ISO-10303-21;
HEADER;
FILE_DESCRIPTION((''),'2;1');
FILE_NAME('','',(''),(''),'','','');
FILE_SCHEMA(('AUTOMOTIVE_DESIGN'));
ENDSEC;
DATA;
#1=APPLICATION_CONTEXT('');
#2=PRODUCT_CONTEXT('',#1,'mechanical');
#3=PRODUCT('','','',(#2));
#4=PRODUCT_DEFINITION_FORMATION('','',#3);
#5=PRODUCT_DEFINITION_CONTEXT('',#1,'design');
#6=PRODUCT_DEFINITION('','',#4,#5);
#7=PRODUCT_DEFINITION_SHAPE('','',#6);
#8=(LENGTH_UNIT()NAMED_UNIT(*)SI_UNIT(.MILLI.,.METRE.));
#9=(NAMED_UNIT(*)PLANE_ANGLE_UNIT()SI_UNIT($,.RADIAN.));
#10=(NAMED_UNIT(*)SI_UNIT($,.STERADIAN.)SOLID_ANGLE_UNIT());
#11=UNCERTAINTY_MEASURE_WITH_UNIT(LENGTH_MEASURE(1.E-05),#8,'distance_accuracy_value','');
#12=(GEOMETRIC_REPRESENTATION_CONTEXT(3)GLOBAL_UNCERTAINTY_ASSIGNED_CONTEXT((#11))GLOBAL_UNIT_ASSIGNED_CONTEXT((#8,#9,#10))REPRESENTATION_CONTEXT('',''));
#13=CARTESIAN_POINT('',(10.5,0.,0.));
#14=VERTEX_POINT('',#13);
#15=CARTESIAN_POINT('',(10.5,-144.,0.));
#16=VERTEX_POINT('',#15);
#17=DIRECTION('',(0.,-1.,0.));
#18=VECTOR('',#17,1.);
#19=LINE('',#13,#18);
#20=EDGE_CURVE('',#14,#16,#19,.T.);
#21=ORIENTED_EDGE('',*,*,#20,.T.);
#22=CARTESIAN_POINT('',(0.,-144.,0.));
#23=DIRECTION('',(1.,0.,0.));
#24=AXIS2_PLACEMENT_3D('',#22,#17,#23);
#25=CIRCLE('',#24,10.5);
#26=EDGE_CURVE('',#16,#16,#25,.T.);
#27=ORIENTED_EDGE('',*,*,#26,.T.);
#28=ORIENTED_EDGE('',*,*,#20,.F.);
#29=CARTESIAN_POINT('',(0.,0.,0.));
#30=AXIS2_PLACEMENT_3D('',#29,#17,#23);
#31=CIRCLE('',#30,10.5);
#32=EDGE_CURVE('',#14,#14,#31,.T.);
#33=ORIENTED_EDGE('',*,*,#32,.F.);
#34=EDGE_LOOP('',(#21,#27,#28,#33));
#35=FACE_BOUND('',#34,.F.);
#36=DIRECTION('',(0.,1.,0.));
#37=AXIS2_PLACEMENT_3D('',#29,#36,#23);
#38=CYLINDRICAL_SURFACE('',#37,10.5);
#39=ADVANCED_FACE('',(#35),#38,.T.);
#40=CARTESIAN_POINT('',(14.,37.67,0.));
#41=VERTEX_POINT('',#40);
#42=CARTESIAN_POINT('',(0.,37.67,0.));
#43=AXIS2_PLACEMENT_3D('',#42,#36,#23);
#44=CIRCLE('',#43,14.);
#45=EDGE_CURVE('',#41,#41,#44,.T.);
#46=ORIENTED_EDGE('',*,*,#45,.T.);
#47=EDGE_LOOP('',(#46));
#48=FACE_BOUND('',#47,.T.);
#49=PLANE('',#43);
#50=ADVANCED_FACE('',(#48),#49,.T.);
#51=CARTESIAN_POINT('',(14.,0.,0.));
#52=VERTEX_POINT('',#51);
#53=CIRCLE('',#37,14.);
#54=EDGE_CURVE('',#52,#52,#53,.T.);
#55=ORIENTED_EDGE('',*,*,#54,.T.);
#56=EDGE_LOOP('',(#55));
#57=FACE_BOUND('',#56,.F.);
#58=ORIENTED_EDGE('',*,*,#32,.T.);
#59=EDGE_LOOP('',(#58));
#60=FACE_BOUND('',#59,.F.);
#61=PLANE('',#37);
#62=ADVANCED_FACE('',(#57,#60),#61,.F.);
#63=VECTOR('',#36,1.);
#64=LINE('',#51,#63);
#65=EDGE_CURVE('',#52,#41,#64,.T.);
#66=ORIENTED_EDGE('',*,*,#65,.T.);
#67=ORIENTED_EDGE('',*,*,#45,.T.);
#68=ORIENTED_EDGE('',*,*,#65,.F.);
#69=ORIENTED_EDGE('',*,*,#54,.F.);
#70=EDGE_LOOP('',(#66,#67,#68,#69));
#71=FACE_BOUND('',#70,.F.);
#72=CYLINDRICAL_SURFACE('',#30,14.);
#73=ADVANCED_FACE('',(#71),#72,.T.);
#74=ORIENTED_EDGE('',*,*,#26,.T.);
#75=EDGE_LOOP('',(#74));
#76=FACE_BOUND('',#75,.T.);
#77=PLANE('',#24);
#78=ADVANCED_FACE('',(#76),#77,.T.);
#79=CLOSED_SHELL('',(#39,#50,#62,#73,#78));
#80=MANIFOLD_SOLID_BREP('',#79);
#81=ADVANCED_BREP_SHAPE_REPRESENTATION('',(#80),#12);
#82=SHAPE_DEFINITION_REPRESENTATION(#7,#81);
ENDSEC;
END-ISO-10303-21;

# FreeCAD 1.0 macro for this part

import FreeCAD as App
import Part
import Sketcher

V = App.Vector
Q = App.Units.Quantity

doc = App.newDocument("Part")
body = doc.addObject("PartDesign::Body", "Body")

sketch1 = body.newObject("Sketcher::SketchObject", "Sketch")
sketch1.AttachmentSupport = (doc.getObject("XZ_Plane"), [""])
sketch1.MapMode = "FlatFace"
sketch1.addGeometry(Part.Circle(V(0, 0, 0), V(0, 0, 1), 14), False)
sketch1.addConstraint(Sketcher.Constraint("Coincident", 0, 3, -1, 1))
sketch1.addConstraint(Sketcher.Constraint("Diameter", 0, Q("28 mm")))
pad1 = body.newObject("PartDesign::Pad", "Pad")
pad1.Profile = sketch1
pad1.Length = 37.67
pad1.Reversed = True

sketch2 = body.newObject("Sketcher::SketchObject", "Sketch001")
sketch2.AttachmentSupport = (doc.getObject("XZ_Plane"), [""])
sketch2.MapMode = "FlatFace"
sketch2.addGeometry(Part.Circle(V(0, 0, 0), V(0, 0, 1), 10), False)
sketch2.addConstraint(Sketcher.Constraint("Coincident", 0, 3, -1, 1))
sketch2.addConstraint(Sketcher.Constraint("Diameter", 0, Q("21 mm")))
pad2 = body.newObject("PartDesign::Pad", "Pad001")
pad2.Profile = sketch2
pad2.Length = 144

doc.recompute()
